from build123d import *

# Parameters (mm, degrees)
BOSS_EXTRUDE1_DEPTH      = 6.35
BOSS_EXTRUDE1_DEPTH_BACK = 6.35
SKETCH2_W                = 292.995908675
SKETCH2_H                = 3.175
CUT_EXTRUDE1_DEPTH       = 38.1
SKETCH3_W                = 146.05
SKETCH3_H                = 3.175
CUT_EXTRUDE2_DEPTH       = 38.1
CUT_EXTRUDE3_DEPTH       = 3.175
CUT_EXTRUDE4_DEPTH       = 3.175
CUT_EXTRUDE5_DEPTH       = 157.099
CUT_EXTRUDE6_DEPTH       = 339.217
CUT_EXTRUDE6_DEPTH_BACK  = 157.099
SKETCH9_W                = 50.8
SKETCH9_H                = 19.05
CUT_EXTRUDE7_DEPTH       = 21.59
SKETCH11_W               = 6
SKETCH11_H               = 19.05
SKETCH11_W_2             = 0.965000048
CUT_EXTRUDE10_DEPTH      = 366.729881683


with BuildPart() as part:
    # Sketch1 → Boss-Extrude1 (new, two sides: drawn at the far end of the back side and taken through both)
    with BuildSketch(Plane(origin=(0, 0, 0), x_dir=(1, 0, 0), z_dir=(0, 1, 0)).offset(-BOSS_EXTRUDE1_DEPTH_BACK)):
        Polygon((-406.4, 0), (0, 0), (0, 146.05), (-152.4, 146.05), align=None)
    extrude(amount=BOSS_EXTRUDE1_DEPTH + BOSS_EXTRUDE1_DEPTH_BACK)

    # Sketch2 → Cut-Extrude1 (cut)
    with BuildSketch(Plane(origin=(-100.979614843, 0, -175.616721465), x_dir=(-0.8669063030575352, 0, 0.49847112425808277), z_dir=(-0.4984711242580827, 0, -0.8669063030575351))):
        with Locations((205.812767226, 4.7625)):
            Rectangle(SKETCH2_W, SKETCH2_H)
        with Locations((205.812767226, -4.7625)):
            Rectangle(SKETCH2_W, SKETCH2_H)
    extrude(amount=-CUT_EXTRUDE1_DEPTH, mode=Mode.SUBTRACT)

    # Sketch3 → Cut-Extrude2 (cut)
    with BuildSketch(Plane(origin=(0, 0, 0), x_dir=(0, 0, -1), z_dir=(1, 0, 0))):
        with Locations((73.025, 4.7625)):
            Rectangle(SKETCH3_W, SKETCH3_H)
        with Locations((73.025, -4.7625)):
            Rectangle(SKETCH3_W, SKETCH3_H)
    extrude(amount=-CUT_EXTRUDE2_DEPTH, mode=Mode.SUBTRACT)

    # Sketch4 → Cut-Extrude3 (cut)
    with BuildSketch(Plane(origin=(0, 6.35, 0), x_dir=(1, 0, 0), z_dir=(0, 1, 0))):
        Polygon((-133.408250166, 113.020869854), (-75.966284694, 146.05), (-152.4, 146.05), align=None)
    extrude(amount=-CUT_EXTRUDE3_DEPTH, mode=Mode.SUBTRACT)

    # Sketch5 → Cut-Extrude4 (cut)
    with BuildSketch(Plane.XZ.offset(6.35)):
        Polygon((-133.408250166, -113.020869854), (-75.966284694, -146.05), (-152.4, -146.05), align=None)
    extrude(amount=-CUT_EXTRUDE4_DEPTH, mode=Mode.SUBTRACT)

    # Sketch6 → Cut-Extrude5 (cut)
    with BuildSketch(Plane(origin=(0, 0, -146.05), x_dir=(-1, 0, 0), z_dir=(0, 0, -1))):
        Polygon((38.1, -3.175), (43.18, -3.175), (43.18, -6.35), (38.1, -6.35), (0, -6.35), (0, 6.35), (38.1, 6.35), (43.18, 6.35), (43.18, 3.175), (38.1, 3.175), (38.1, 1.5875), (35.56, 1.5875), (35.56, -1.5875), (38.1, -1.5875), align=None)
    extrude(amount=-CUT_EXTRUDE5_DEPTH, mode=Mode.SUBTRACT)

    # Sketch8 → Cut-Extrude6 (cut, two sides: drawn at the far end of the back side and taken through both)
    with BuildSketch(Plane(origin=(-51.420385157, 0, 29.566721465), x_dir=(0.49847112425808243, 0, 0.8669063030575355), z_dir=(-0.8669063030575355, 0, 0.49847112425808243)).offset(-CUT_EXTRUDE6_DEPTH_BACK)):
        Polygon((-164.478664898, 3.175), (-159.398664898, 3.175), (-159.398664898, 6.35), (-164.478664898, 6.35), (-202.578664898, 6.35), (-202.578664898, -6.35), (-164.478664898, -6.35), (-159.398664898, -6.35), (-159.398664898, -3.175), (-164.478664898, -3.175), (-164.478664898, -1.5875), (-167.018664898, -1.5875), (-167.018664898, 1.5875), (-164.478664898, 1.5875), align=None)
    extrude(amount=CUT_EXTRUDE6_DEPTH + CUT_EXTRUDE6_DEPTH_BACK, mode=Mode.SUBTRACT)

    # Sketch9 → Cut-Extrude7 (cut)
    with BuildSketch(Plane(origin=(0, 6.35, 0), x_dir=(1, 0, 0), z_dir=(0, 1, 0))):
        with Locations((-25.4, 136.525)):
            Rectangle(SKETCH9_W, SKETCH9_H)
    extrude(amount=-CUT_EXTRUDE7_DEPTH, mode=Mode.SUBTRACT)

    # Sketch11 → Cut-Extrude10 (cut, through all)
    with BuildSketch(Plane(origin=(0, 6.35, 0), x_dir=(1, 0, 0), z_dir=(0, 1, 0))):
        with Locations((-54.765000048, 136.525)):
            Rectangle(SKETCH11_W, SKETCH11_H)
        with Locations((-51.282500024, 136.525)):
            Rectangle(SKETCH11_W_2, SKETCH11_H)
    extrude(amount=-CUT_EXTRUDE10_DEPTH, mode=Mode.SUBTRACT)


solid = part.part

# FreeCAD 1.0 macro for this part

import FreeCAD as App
import Part
import Sketcher

V = App.Vector
Q = App.Units.Quantity

doc = App.newDocument("Part")
params = doc.addObject("Spreadsheet::Sheet", "Params")
for row, (alias, value) in enumerate([
    ("sketch1_width", "16 in"),
    ("sketch1_width2", "6 in"),
    ("sketch1_height", "5.75 in"),
    ("pad1_length", "0.25 in"),
    ("pad1_length2", "0.25 in"),
    ("sketch2_height", "0.125 in"),
    ("pocket1_length", "1.5 in"),
    ("sketch3_height", "5.75 in"),
    ("sketch3_width", "0.125 in"),
    ("pocket2_length", "1.5 in"),
    ("sketch4_length", "1.5 in"),
    ("pocket3_length", "0.125 in"),
    ("sketch5_length", "1.5 in"),
    ("pocket4_length", "0.125 in"),
    ("sketch6_width", "0.2 in"),
    ("sketch6_width2", "0.1 in"),
    ("sketch6_width3", "1.7 in"),
    ("sketch6_height", "0.5 in"),
    ("sketch6_height2", "0.0625 in"),
    ("pocket5_length", "6.185 in"),
    ("sketch7_width", "0.2 in"),
    ("sketch7_width2", "1.7 in"),
    ("sketch7_width3", "0.1 in"),
    ("sketch7_height", "0.5 in"),
    ("sketch7_height2", "0.125 in"),
    ("sketch8_width", "2 in"),
    ("sketch8_height", "0.75 in"),
    ("pocket7_length", "0.85 in"),
    ("sketch9_height", "0.75 in"),
], start=1):
    params.set(f"A{row}", alias)
    params.set(f"B{row}", "=" + value)
    params.setAlias(f"B{row}", alias)

body = doc.addObject("PartDesign::Body", "Body")

sketch1 = body.newObject("Sketcher::SketchObject", "Sketch")
sketch1.AttachmentSupport = (doc.getObject("XZ_Plane"), [""])
sketch1.MapMode = "FlatFace"
sketch1.addGeometry(Part.LineSegment(V(-406, 0, 0), V(0, 0, 0)), False)
sketch1.addGeometry(Part.LineSegment(V(0, 0, 0), V(0, -146, 0)), False)
sketch1.addGeometry(Part.LineSegment(V(0, -146, 0), V(-152, -146, 0)), False)
sketch1.addGeometry(Part.LineSegment(V(-152, -146, 0), V(-406, 0, 0)), False)
sketch1.addConstraint(Sketcher.Constraint("Coincident", 0, 2, 1, 1))
sketch1.addConstraint(Sketcher.Constraint("Coincident", 1, 2, 2, 1))
sketch1.addConstraint(Sketcher.Constraint("Coincident", 2, 2, 3, 1))
sketch1.addConstraint(Sketcher.Constraint("Coincident", 3, 2, 0, 1))
sketch1.addConstraint(Sketcher.Constraint("Horizontal", 0))
sketch1.addConstraint(Sketcher.Constraint("Vertical", 1))
sketch1.addConstraint(Sketcher.Constraint("Horizontal", 2))
sketch1.addConstraint(Sketcher.Constraint("Coincident", 0, 2, -1, 1))
sketch1.addConstraint(Sketcher.Constraint("DistanceX", 0, 1, 0, 2, Q("16 in")))
sketch1.addConstraint(Sketcher.Constraint("DistanceX", 2, 2, 2, 1, Q("6 in")))
sketch1.addConstraint(Sketcher.Constraint("DistanceY", 1, 2, 1, 1, Q("5.75 in")))
sketch1.setExpression("Constraints[8]", "Params.sketch1_width")
sketch1.setExpression("Constraints[9]", "Params.sketch1_width2")
sketch1.setExpression("Constraints[10]", "Params.sketch1_height")
pad1 = body.newObject("PartDesign::Pad", "Pad")
pad1.Profile = sketch1
pad1.Type = "TwoLengths"
pad1.setExpression("Length", "Params.pad1_length")
pad1.setExpression("Length2", "Params.pad1_length2")
pad1.Reversed = True

sketch2 = body.newObject("Sketcher::SketchObject", "Sketch001")
sketch2.Placement = App.Placement(V(-100.979615, 0, -175.616721), App.Rotation(V(-0.866906303, 0, 0.498471124), V(0, 1, 0), V(-0.498471124, 0, -0.866906303), "ZXY"))
sketch2.addGeometry(Part.LineSegment(V(59.3, 6.3, 0), V(59.3, 3.2, 0)), False)
sketch2.addGeometry(Part.LineSegment(V(59.3, 3.2, 0), V(352.3, 3.2, 0)), False)
sketch2.addGeometry(Part.LineSegment(V(352.3, 3.2, 0), V(352.3, 6.3, 0)), False)
sketch2.addGeometry(Part.LineSegment(V(352.3, 6.3, 0), V(59.3, 6.3, 0)), False)
sketch2.addGeometry(Part.LineSegment(V(59.3, -3.2, 0), V(59.3, -6.3, 0)), False)
sketch2.addGeometry(Part.LineSegment(V(59.3, -6.3, 0), V(352.3, -6.3, 0)), False)
sketch2.addGeometry(Part.LineSegment(V(352.3, -6.3, 0), V(352.3, -3.2, 0)), False)
sketch2.addGeometry(Part.LineSegment(V(352.3, -3.2, 0), V(59.3, -3.2, 0)), False)
sketch2.addConstraint(Sketcher.Constraint("Coincident", 0, 2, 1, 1))
sketch2.addConstraint(Sketcher.Constraint("Coincident", 1, 2, 2, 1))
sketch2.addConstraint(Sketcher.Constraint("Coincident", 2, 2, 3, 1))
sketch2.addConstraint(Sketcher.Constraint("Coincident", 3, 2, 0, 1))
sketch2.addConstraint(Sketcher.Constraint("Coincident", 4, 2, 5, 1))
sketch2.addConstraint(Sketcher.Constraint("Coincident", 5, 2, 6, 1))
sketch2.addConstraint(Sketcher.Constraint("Coincident", 6, 2, 7, 1))
sketch2.addConstraint(Sketcher.Constraint("Coincident", 7, 2, 4, 1))
sketch2.addConstraint(Sketcher.Constraint("Vertical", 0))
sketch2.addConstraint(Sketcher.Constraint("Horizontal", 1))
sketch2.addConstraint(Sketcher.Constraint("Vertical", 2))
sketch2.addConstraint(Sketcher.Constraint("Horizontal", 3))
sketch2.addConstraint(Sketcher.Constraint("Vertical", 4))
sketch2.addConstraint(Sketcher.Constraint("Horizontal", 5))
sketch2.addConstraint(Sketcher.Constraint("Vertical", 6))
sketch2.addConstraint(Sketcher.Constraint("Horizontal", 7))
sketch2.addConstraint(Sketcher.Constraint("Symmetric", 3, 2, 4, 2, -1))
sketch2.addConstraint(Sketcher.Constraint("Symmetric", 1, 2, 6, 2, -1))
sketch2.addConstraint(Sketcher.Constraint("DistanceY", 4, 2, 3, 2, Q("0.5 in")))
sketch2.addConstraint(Sketcher.Constraint("DistanceY", 0, 2, 0, 1, Q("0.125 in")))
sketch2.addConstraint(Sketcher.Constraint("DistanceX", 1, 1, 1, 2, 292.995909))
sketch2.addConstraint(Sketcher.Constraint("DistanceX", -1, 1, 1, 2, 352.310721))
sketch2.setExpression("Constraints[19]", "Params.sketch2_height")
pocket1 = body.newObject("PartDesign::Pocket", "Pocket")
pocket1.Profile = sketch2
pocket1.setExpression("Length", "Params.pocket1_length")

sketch3 = body.newObject("Sketcher::SketchObject", "Sketch002")
sketch3.AttachmentSupport = (doc.getObject("YZ_Plane"), [""])
sketch3.MapMode = "FlatFace"
sketch3.addGeometry(Part.LineSegment(V(6.3, 0, 0), V(3.2, 0, 0)), False)
sketch3.addGeometry(Part.LineSegment(V(3.2, 0, 0), V(3.2, -146.1, 0)), False)
sketch3.addGeometry(Part.LineSegment(V(3.2, -146.1, 0), V(6.3, -146.1, 0)), False)
sketch3.addGeometry(Part.LineSegment(V(6.3, -146.1, 0), V(6.3, 0, 0)), False)
sketch3.addGeometry(Part.LineSegment(V(-3.2, 0, 0), V(-6.3, 0, 0)), False)
sketch3.addGeometry(Part.LineSegment(V(-6.3, 0, 0), V(-6.3, -146.1, 0)), False)
sketch3.addGeometry(Part.LineSegment(V(-6.3, -146.1, 0), V(-3.2, -146.1, 0)), False)
sketch3.addGeometry(Part.LineSegment(V(-3.2, -146.1, 0), V(-3.2, 0, 0)), False)
sketch3.addConstraint(Sketcher.Constraint("Coincident", 0, 2, 1, 1))
sketch3.addConstraint(Sketcher.Constraint("Coincident", 1, 2, 2, 1))
sketch3.addConstraint(Sketcher.Constraint("Coincident", 2, 2, 3, 1))
sketch3.addConstraint(Sketcher.Constraint("Coincident", 3, 2, 0, 1))
sketch3.addConstraint(Sketcher.Constraint("Coincident", 4, 2, 5, 1))
sketch3.addConstraint(Sketcher.Constraint("Coincident", 5, 2, 6, 1))
sketch3.addConstraint(Sketcher.Constraint("Coincident", 6, 2, 7, 1))
sketch3.addConstraint(Sketcher.Constraint("Coincident", 7, 2, 4, 1))
sketch3.addConstraint(Sketcher.Constraint("Horizontal", 0))
sketch3.addConstraint(Sketcher.Constraint("Vertical", 1))
sketch3.addConstraint(Sketcher.Constraint("Horizontal", 2))
sketch3.addConstraint(Sketcher.Constraint("Vertical", 3))
sketch3.addConstraint(Sketcher.Constraint("Horizontal", 4))
sketch3.addConstraint(Sketcher.Constraint("Vertical", 5))
sketch3.addConstraint(Sketcher.Constraint("Horizontal", 6))
sketch3.addConstraint(Sketcher.Constraint("Vertical", 7))
sketch3.addConstraint(Sketcher.Constraint("Symmetric", 3, 2, 4, 2, -1, 1))
sketch3.addConstraint(Sketcher.Constraint("Symmetric", 1, 2, 6, 2, -2))
sketch3.addConstraint(Sketcher.Constraint("PointOnObject", 0, 2, -1))
sketch3.addConstraint(Sketcher.Constraint("DistanceY", 1, 2, 1, 1, Q("5.75 in")))
sketch3.addConstraint(Sketcher.Constraint("DistanceX", 4, 2, 3, 2, Q("0.5 in")))
sketch3.addConstraint(Sketcher.Constraint("DistanceX", 0, 2, 0, 1, Q("0.125 in")))
sketch3.setExpression("Constraints[19]", "Params.sketch3_height")
sketch3.setExpression("Constraints[21]", "Params.sketch3_width")
pocket2 = body.newObject("PartDesign::Pocket", "Pocket001")
pocket2.Profile = sketch3
pocket2.setExpression("Length", "Params.pocket2_length")

sketch4 = body.newObject("Sketcher::SketchObject", "Sketch003")
sketch4.AttachmentSupport = (doc.getObject("XZ_Plane"), [""])
sketch4.MapMode = "FlatFace"
sketch4.AttachmentOffset = App.Placement(V(0, 0, -0.25 * 25.4), App.Rotation())
sketch4.addGeometry(Part.LineSegment(V(-133, -113, 0), V(-76, -146, 0)), False)
sketch4.addGeometry(Part.LineSegment(V(-76, -146, 0), V(-152, -146, 0)), False)
sketch4.addGeometry(Part.LineSegment(V(-152, -146, 0), V(-133, -113, 0)), False)
sketch4.addConstraint(Sketcher.Constraint("Coincident", 0, 2, 1, 1))
sketch4.addConstraint(Sketcher.Constraint("Coincident", 1, 2, 2, 1))
sketch4.addConstraint(Sketcher.Constraint("Coincident", 2, 2, 0, 1))
sketch4.addConstraint(Sketcher.Constraint("Horizontal", 1))
sketch4.addConstraint(Sketcher.Constraint("Perpendicular", 0, 2))
sketch4.addConstraint(Sketcher.Constraint("DistanceX", 1, 2, -1, 1, Q("6 in")))
sketch4.addConstraint(Sketcher.Constraint("Distance", 2, Q("1.5 in")))
sketch4.addConstraint(Sketcher.Constraint("DistanceY", 0, 2, -1, 1, Q("5.75 in")))
sketch4.addConstraint(Sketcher.Constraint("Distance", 0, 66.26087))
sketch4.setExpression("Constraints[6]", "Params.sketch4_length")
pocket3 = body.newObject("PartDesign::Pocket", "Pocket002")
pocket3.Profile = sketch4
pocket3.setExpression("Length", "Params.pocket3_length")
pocket3.Reversed = True

sketch5 = body.newObject("Sketcher::SketchObject", "Sketch004")
sketch5.AttachmentSupport = (doc.getObject("XZ_Plane"), [""])
sketch5.MapMode = "FlatFace"
sketch5.AttachmentOffset = App.Placement(V(0, 0, 0.25 * 25.4), App.Rotation())
sketch5.addGeometry(Part.LineSegment(V(-76, -146, 0), V(-133, -113, 0)), False)
sketch5.addGeometry(Part.LineSegment(V(-133, -113, 0), V(-152, -146, 0)), False)
sketch5.addGeometry(Part.LineSegment(V(-152, -146, 0), V(-76, -146, 0)), False)
sketch5.addConstraint(Sketcher.Constraint("Coincident", 0, 2, 1, 1))
sketch5.addConstraint(Sketcher.Constraint("Coincident", 1, 2, 2, 1))
sketch5.addConstraint(Sketcher.Constraint("Coincident", 2, 2, 0, 1))
sketch5.addConstraint(Sketcher.Constraint("Horizontal", 2))
sketch5.addConstraint(Sketcher.Constraint("Perpendicular", 0, 1))
sketch5.addConstraint(Sketcher.Constraint("DistanceX", 1, 2, -1, 1, Q("6 in")))
sketch5.addConstraint(Sketcher.Constraint("Distance", 1, Q("1.5 in")))
sketch5.addConstraint(Sketcher.Constraint("DistanceY", 1, 2, -1, 1, Q("5.75 in")))
sketch5.addConstraint(Sketcher.Constraint("Distance", 0, 66.26087))
sketch5.setExpression("Constraints[6]", "Params.sketch5_length")
pocket4 = body.newObject("PartDesign::Pocket", "Pocket003")
pocket4.Profile = sketch5
pocket4.setExpression("Length", "Params.pocket4_length")

sketch6 = body.newObject("Sketcher::SketchObject", "Sketch005")
sketch6.AttachmentSupport = (doc.getObject("XY_Plane"), [""])
sketch6.MapMode = "FlatFace"
sketch6.AttachmentOffset = App.Placement(V(0, 0, -5.75 * 25.4), App.Rotation())
sketch6.addGeometry(Part.LineSegment(V(-43.2, -3.2, 0), V(-38.1, -3.2, 0)), False)
sketch6.addGeometry(Part.LineSegment(V(-38.1, -3.2, 0), V(-38.1, -1.6, 0)), False)
sketch6.addGeometry(Part.LineSegment(V(-38.1, -1.6, 0), V(-35.6, -1.6, 0)), False)
sketch6.addGeometry(Part.LineSegment(V(-35.6, -1.6, 0), V(-35.6, 1.6, 0)), False)
sketch6.addGeometry(Part.LineSegment(V(-35.6, 1.6, 0), V(-38.1, 1.6, 0)), False)
sketch6.addGeometry(Part.LineSegment(V(-38.1, 1.6, 0), V(-38.1, 3.2, 0)), False)
sketch6.addGeometry(Part.LineSegment(V(-38.1, 3.2, 0), V(-43.2, 3.2, 0)), False)
sketch6.addGeometry(Part.LineSegment(V(-43.2, 3.2, 0), V(-43.2, 6.3, 0)), False)
sketch6.addGeometry(Part.LineSegment(V(-43.2, 6.3, 0), V(0, 6.3, 0)), False)
sketch6.addGeometry(Part.LineSegment(V(0, 6.3, 0), V(0, -6.3, 0)), False)
sketch6.addGeometry(Part.LineSegment(V(0, -6.3, 0), V(-43.2, -6.3, 0)), False)
sketch6.addGeometry(Part.LineSegment(V(-43.2, -6.3, 0), V(-43.2, -3.2, 0)), False)
sketch6.addConstraint(Sketcher.Constraint("Coincident", 0, 2, 1, 1))
sketch6.addConstraint(Sketcher.Constraint("Coincident", 1, 2, 2, 1))
sketch6.addConstraint(Sketcher.Constraint("Coincident", 2, 2, 3, 1))
sketch6.addConstraint(Sketcher.Constraint("Coincident", 3, 2, 4, 1))
sketch6.addConstraint(Sketcher.Constraint("Coincident", 4, 2, 5, 1))
sketch6.addConstraint(Sketcher.Constraint("Coincident", 5, 2, 6, 1))
sketch6.addConstraint(Sketcher.Constraint("Coincident", 6, 2, 7, 1))
sketch6.addConstraint(Sketcher.Constraint("Coincident", 7, 2, 8, 1))
sketch6.addConstraint(Sketcher.Constraint("Coincident", 8, 2, 9, 1))
sketch6.addConstraint(Sketcher.Constraint("Coincident", 9, 2, 10, 1))
sketch6.addConstraint(Sketcher.Constraint("Coincident", 10, 2, 11, 1))
sketch6.addConstraint(Sketcher.Constraint("Coincident", 11, 2, 0, 1))
sketch6.addConstraint(Sketcher.Constraint("Horizontal", 0))
sketch6.addConstraint(Sketcher.Constraint("Vertical", 1))
sketch6.addConstraint(Sketcher.Constraint("Horizontal", 2))
sketch6.addConstraint(Sketcher.Constraint("Vertical", 3))
sketch6.addConstraint(Sketcher.Constraint("Horizontal", 4))
sketch6.addConstraint(Sketcher.Constraint("Vertical", 5))
sketch6.addConstraint(Sketcher.Constraint("Horizontal", 6))
sketch6.addConstraint(Sketcher.Constraint("Vertical", 7))
sketch6.addConstraint(Sketcher.Constraint("Horizontal", 8))
sketch6.addConstraint(Sketcher.Constraint("Vertical", 9))
sketch6.addConstraint(Sketcher.Constraint("Horizontal", 10))
sketch6.addConstraint(Sketcher.Constraint("Vertical", 11))
sketch6.addConstraint(Sketcher.Constraint("Symmetric", 8, 2, 9, 2, -1, 1))
sketch6.addConstraint(Sketcher.Constraint("Symmetric", 1, 2, 4, 2, -1))
sketch6.addConstraint(Sketcher.Constraint("Symmetric", 6, 2, 11, 2, -1))
sketch6.addConstraint(Sketcher.Constraint("Equal", 3, 7))
sketch6.addConstraint(Sketcher.Constraint("DistanceX", 0, 1, 0, 2, Q("0.2 in")))
sketch6.addConstraint(Sketcher.Constraint("DistanceX", 2, 1, 2, 2, Q("0.1 in")))
sketch6.addConstraint(Sketcher.Constraint("DistanceX", 8, 1, 8, 2, Q("1.7 in")))
sketch6.addConstraint(Sketcher.Constraint("DistanceY", 9, 2, 9, 1, Q("0.5 in")))
sketch6.addConstraint(Sketcher.Constraint("DistanceY", 1, 1, 1, 2, Q("0.0625 in")))
sketch6.setExpression("Constraints[28]", "Params.sketch6_width")
sketch6.setExpression("Constraints[29]", "Params.sketch6_width2")
sketch6.setExpression("Constraints[30]", "Params.sketch6_width3")
sketch6.setExpression("Constraints[31]", "Params.sketch6_height")
sketch6.setExpression("Constraints[32]", "Params.sketch6_height2")
pocket5 = body.newObject("PartDesign::Pocket", "Pocket004")
pocket5.Profile = sketch6
pocket5.setExpression("Length", "Params.pocket5_length")
pocket5.Reversed = True

sketch7 = body.newObject("Sketcher::SketchObject", "Sketch006")
sketch7.Placement = App.Placement(V(-51.420385, 0, 29.566721), App.Rotation(V(0.498471124, 0, 0.866906303), V(0, 1, 0), V(-0.866906303, 0, 0.498471124), "ZXY"))
sketch7.addGeometry(Part.LineSegment(V(-164.5, 3.2, 0), V(-159.4, 3.2, 0)), False)
sketch7.addGeometry(Part.LineSegment(V(-159.4, 3.2, 0), V(-159.4, 6.3, 0)), False)
sketch7.addGeometry(Part.LineSegment(V(-159.4, 6.3, 0), V(-202.6, 6.3, 0)), False)
sketch7.addGeometry(Part.LineSegment(V(-202.6, 6.3, 0), V(-202.6, -6.3, 0)), False)
sketch7.addGeometry(Part.LineSegment(V(-202.6, -6.3, 0), V(-159.4, -6.3, 0)), False)
sketch7.addGeometry(Part.LineSegment(V(-159.4, -6.3, 0), V(-159.4, -3.2, 0)), False)
sketch7.addGeometry(Part.LineSegment(V(-159.4, -3.2, 0), V(-164.5, -3.2, 0)), False)
sketch7.addGeometry(Part.LineSegment(V(-164.5, -3.2, 0), V(-164.5, -1.6, 0)), False)
sketch7.addGeometry(Part.LineSegment(V(-164.5, -1.6, 0), V(-167, -1.6, 0)), False)
sketch7.addGeometry(Part.LineSegment(V(-167, -1.6, 0), V(-167, 1.6, 0)), False)
sketch7.addGeometry(Part.LineSegment(V(-167, 1.6, 0), V(-164.5, 1.6, 0)), False)
sketch7.addGeometry(Part.LineSegment(V(-164.5, 1.6, 0), V(-164.5, 3.2, 0)), False)
sketch7.addConstraint(Sketcher.Constraint("Coincident", 0, 2, 1, 1))
sketch7.addConstraint(Sketcher.Constraint("Coincident", 1, 2, 2, 1))
sketch7.addConstraint(Sketcher.Constraint("Coincident", 2, 2, 3, 1))
sketch7.addConstraint(Sketcher.Constraint("Coincident", 3, 2, 4, 1))
sketch7.addConstraint(Sketcher.Constraint("Coincident", 4, 2, 5, 1))
sketch7.addConstraint(Sketcher.Constraint("Coincident", 5, 2, 6, 1))
sketch7.addConstraint(Sketcher.Constraint("Coincident", 6, 2, 7, 1))
sketch7.addConstraint(Sketcher.Constraint("Coincident", 7, 2, 8, 1))
sketch7.addConstraint(Sketcher.Constraint("Coincident", 8, 2, 9, 1))
sketch7.addConstraint(Sketcher.Constraint("Coincident", 9, 2, 10, 1))
sketch7.addConstraint(Sketcher.Constraint("Coincident", 10, 2, 11, 1))
sketch7.addConstraint(Sketcher.Constraint("Coincident", 11, 2, 0, 1))
sketch7.addConstraint(Sketcher.Constraint("Horizontal", 0))
sketch7.addConstraint(Sketcher.Constraint("Vertical", 1))
sketch7.addConstraint(Sketcher.Constraint("Horizontal", 2))
sketch7.addConstraint(Sketcher.Constraint("Vertical", 3))
sketch7.addConstraint(Sketcher.Constraint("Horizontal", 4))
sketch7.addConstraint(Sketcher.Constraint("Vertical", 5))
sketch7.addConstraint(Sketcher.Constraint("Horizontal", 6))
sketch7.addConstraint(Sketcher.Constraint("Vertical", 7))
sketch7.addConstraint(Sketcher.Constraint("Horizontal", 8))
sketch7.addConstraint(Sketcher.Constraint("Vertical", 9))
sketch7.addConstraint(Sketcher.Constraint("Horizontal", 10))
sketch7.addConstraint(Sketcher.Constraint("Vertical", 11))
sketch7.addConstraint(Sketcher.Constraint("Symmetric", 1, 2, 4, 2, -1))
sketch7.addConstraint(Sketcher.Constraint("Symmetric", 7, 2, 10, 2, -1))
sketch7.addConstraint(Sketcher.Constraint("Equal", 1, 5))
sketch7.addConstraint(Sketcher.Constraint("Equal", 5, 9))
sketch7.addConstraint(Sketcher.Constraint("DistanceX", 0, 1, 0, 2, Q("0.2 in")))
sketch7.addConstraint(Sketcher.Constraint("DistanceX", 2, 2, 2, 1, Q("1.7 in")))
sketch7.addConstraint(Sketcher.Constraint("DistanceX", 8, 2, 8, 1, Q("0.1 in")))
sketch7.addConstraint(Sketcher.Constraint("DistanceY", 3, 2, 3, 1, Q("0.5 in")))
sketch7.addConstraint(Sketcher.Constraint("DistanceY", 1, 1, 1, 2, Q("0.125 in")))
sketch7.addConstraint(Sketcher.Constraint("DistanceX", 0, 2, -1, 1, 159.398665))
sketch7.setExpression("Constraints[28]", "Params.sketch7_width")
sketch7.setExpression("Constraints[29]", "Params.sketch7_width2")
sketch7.setExpression("Constraints[30]", "Params.sketch7_width3")
sketch7.setExpression("Constraints[31]", "Params.sketch7_height")
sketch7.setExpression("Constraints[32]", "Params.sketch7_height2")
pocket6 = body.newObject("PartDesign::Pocket", "Pocket005")
pocket6.Profile = sketch7
pocket6.Type = "ThroughAll"
pocket6.Midplane = True

sketch8 = body.newObject("Sketcher::SketchObject", "Sketch007")
sketch8.AttachmentSupport = (doc.getObject("XZ_Plane"), [""])
sketch8.MapMode = "FlatFace"
sketch8.AttachmentOffset = App.Placement(V(0, 0, -0.25 * 25.4), App.Rotation())
sketch8.addGeometry(Part.LineSegment(V(-51, -146, 0), V(-51, -127, 0)), False)
sketch8.addGeometry(Part.LineSegment(V(-51, -127, 0), V(0, -127, 0)), False)
sketch8.addGeometry(Part.LineSegment(V(0, -127, 0), V(0, -146, 0)), False)
sketch8.addGeometry(Part.LineSegment(V(0, -146, 0), V(-51, -146, 0)), False)
sketch8.addConstraint(Sketcher.Constraint("Coincident", 0, 2, 1, 1))
sketch8.addConstraint(Sketcher.Constraint("Coincident", 1, 2, 2, 1))
sketch8.addConstraint(Sketcher.Constraint("Coincident", 2, 2, 3, 1))
sketch8.addConstraint(Sketcher.Constraint("Coincident", 3, 2, 0, 1))
sketch8.addConstraint(Sketcher.Constraint("Vertical", 0))
sketch8.addConstraint(Sketcher.Constraint("Horizontal", 1))
sketch8.addConstraint(Sketcher.Constraint("Vertical", 2))
sketch8.addConstraint(Sketcher.Constraint("Horizontal", 3))
sketch8.addConstraint(Sketcher.Constraint("PointOnObject", 1, 2, -2))
sketch8.addConstraint(Sketcher.Constraint("DistanceX", 1, 1, 1, 2, Q("2 in")))
sketch8.addConstraint(Sketcher.Constraint("DistanceY", 0, 2, -1, 1, Q("5 in")))
sketch8.addConstraint(Sketcher.Constraint("DistanceY", 0, 1, 0, 2, Q("0.75 in")))
sketch8.setExpression("Constraints[9]", "Params.sketch8_width")
sketch8.setExpression("Constraints[11]", "Params.sketch8_height")
pocket7 = body.newObject("PartDesign::Pocket", "Pocket006")
pocket7.Profile = sketch8
pocket7.setExpression("Length", "Params.pocket7_length")
pocket7.Reversed = True

sketch9 = body.newObject("Sketcher::SketchObject", "Sketch008")
sketch9.AttachmentSupport = (doc.getObject("XZ_Plane"), [""])
sketch9.MapMode = "FlatFace"
sketch9.AttachmentOffset = App.Placement(V(0, 0, -0.25 * 25.4), App.Rotation())
sketch9.addGeometry(Part.LineSegment(V(-58, -146, 0), V(-58, -127, 0)), False)
sketch9.addGeometry(Part.LineSegment(V(-58, -127, 0), V(-51, -127, 0)), False)
sketch9.addGeometry(Part.LineSegment(V(-51, -127, 0), V(-51, -146, 0)), False)
sketch9.addGeometry(Part.LineSegment(V(-51, -146, 0), V(-58, -146, 0)), False)
sketch9.addConstraint(Sketcher.Constraint("Coincident", 0, 2, 1, 1))
sketch9.addConstraint(Sketcher.Constraint("Coincident", 1, 2, 2, 1))
sketch9.addConstraint(Sketcher.Constraint("Coincident", 2, 2, 3, 1))
sketch9.addConstraint(Sketcher.Constraint("Coincident", 3, 2, 0, 1))
sketch9.addConstraint(Sketcher.Constraint("Vertical", 0))
sketch9.addConstraint(Sketcher.Constraint("Horizontal", 1))
sketch9.addConstraint(Sketcher.Constraint("Vertical", 2))
sketch9.addConstraint(Sketcher.Constraint("Horizontal", 3))
sketch9.addConstraint(Sketcher.Constraint("DistanceY", 0, 2, -1, 1, Q("5 in")))
sketch9.addConstraint(Sketcher.Constraint("DistanceX", 1, 2, -1, 1, Q("2 in")))
sketch9.addConstraint(Sketcher.Constraint("DistanceY", 0, 1, 0, 2, Q("0.75 in")))
sketch9.addConstraint(Sketcher.Constraint("DistanceX", 1, 1, 1, 2, 6.965))
sketch9.setExpression("Constraints[10]", "Params.sketch9_height")
pocket8 = body.newObject("PartDesign::Pocket", "Pocket007")
pocket8.Profile = sketch9
pocket8.Type = "ThroughAll"
pocket8.Reversed = True

doc.recompute()
